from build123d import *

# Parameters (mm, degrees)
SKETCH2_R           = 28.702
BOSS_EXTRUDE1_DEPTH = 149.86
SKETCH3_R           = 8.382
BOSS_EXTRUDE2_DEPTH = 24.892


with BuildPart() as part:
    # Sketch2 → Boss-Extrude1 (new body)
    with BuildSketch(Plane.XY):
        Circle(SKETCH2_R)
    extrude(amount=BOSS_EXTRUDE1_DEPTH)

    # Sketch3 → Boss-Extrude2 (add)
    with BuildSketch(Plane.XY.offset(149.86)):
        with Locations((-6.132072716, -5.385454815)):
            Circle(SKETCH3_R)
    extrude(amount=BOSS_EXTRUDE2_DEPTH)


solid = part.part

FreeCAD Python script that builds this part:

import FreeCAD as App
import Part
import Sketcher

V = App.Vector
Q = App.Units.Quantity

doc = App.newDocument("Part")
body = doc.addObject("PartDesign::Body", "Body")

# Sketch on XY plane
sketch1 = body.newObject("Sketcher::SketchObject", "Sketch")
sketch1.AttachmentSupport = (doc.getObject("XY_Plane"), [""])
sketch1.MapMode = "FlatFace"
sketch1.addGeometry(Part.Circle(V(0, 0, 0), V(0, 0, 1), 29), False)
sketch1.addConstraint(Sketcher.Constraint("Coincident", 0, 3, -1, 1))
sketch1.addConstraint(Sketcher.Constraint("Diameter", 0, Q("2.26 in")))
pad1 = body.newObject("PartDesign::Pad", "Pad")
pad1.Profile = sketch1
pad1.Length = Q("5.9 in")

# Sketch on XY plane
sketch2 = body.newObject("Sketcher::SketchObject", "Sketch001")
sketch2.AttachmentSupport = (doc.getObject("XY_Plane"), [""])
sketch2.MapMode = "FlatFace"
sketch2.AttachmentOffset = App.Placement(V(0, 0, 5.9 * 25.4), App.Rotation())
sketch2.addGeometry(Part.Circle(V(-6, -5, 0), V(0, 0, 1), 8), False)
sketch2.addConstraint(Sketcher.Constraint("Diameter", 0, Q("0.66 in")))
sketch2.addConstraint(Sketcher.Constraint("DistanceX", 0, 3, -1, 1, 6.132073))
sketch2.addConstraint(Sketcher.Constraint("DistanceY", 0, 3, -1, 1, 5.385455))
pad2 = body.newObject("PartDesign::Pad", "Pad001")
pad2.Profile = sketch2
pad2.Length = Q("0.98 in")

doc.recompute()
